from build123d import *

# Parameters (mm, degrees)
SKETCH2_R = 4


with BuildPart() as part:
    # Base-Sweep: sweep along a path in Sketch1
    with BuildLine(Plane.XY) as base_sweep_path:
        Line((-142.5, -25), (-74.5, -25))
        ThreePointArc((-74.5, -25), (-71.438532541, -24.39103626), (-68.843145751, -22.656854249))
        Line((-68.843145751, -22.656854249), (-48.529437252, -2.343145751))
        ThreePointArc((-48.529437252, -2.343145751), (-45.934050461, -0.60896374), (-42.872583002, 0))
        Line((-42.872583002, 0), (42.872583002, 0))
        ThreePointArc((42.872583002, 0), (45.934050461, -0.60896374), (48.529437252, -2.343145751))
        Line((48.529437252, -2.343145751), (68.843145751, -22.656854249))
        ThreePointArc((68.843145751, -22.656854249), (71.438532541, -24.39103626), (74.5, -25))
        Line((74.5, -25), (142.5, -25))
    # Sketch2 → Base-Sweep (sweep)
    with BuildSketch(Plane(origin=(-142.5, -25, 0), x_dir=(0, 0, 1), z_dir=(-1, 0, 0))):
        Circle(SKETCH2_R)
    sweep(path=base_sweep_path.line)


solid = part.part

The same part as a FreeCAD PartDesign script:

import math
import FreeCAD as App
import Part
import Sketcher
from FreeCAD import Vector

doc = App.newDocument("Part")
params = doc.addObject("Spreadsheet::Sheet", "Params")
for row, (alias, value) in enumerate([
    ("sketch1_diameter", "8 mm"),
    ("sketch2_radius", "8 mm"),
    ("sketch2_width", "68 mm"),
], start=1):
    params.set(f"A{row}", alias)
    params.set(f"B{row}", "=" + value)
    params.setAlias(f"B{row}", alias)

body = doc.addObject("PartDesign::Body", "Body")

sketch1 = doc.addObject("Sketcher::SketchObject", "Sketch")
body.addObject(sketch1)
sketch1.AttachmentSupport = (doc.YZ_Plane, [""])
sketch1.MapMode = "FlatFace"
sketch1.AttachmentOffset = App.Placement(Vector(0, 0, -142.5), App.Rotation())
sketch1.addGeometry(Part.Circle(Vector(-25, 0, 0), Vector(0, 0, 1), 4), False)
sketch1.addConstraint(Sketcher.Constraint("PointOnObject", 0, 3, -1))
sketch1.addConstraint(Sketcher.Constraint("Diameter", 0, 8.0))
sketch1.addConstraint(Sketcher.Constraint("DistanceX", 0, 3, -1, 1, 25.0))
sketch1.setExpression("Constraints[1]", "Params.sketch1_diameter")

sketch2 = doc.addObject("Sketcher::SketchObject", "Sketch001")
body.addObject(sketch2)
sketch2.AttachmentSupport = (doc.XY_Plane, [""])
sketch2.MapMode = "FlatFace"
sketch2.addGeometry(Part.LineSegment(Vector(-142, -25, 0), Vector(-74, -25, 0)), False)
sketch2.addGeometry(Part.ArcOfCircle(Part.Circle(Vector(-74, -17, 0), Vector(0, 0, 1), 8), math.radians(-90), math.radians(-45)), False)
sketch2.addGeometry(Part.LineSegment(Vector(-69, -23, 0), Vector(-49, -2, 0)), False)
sketch2.addGeometry(Part.ArcOfCircle(Part.Circle(Vector(-43, -8, 0), Vector(0, 0, 1), 8), math.radians(90), math.radians(135)), False)
sketch2.addGeometry(Part.LineSegment(Vector(-43, 0, 0), Vector(43, 0, 0)), False)
sketch2.addGeometry(Part.ArcOfCircle(Part.Circle(Vector(43, -8, 0), Vector(0, 0, 1), 8), math.radians(45), math.radians(90)), False)
sketch2.addGeometry(Part.LineSegment(Vector(49, -2, 0), Vector(69, -23, 0)), False)
sketch2.addGeometry(Part.ArcOfCircle(Part.Circle(Vector(74, -17, 0), Vector(0, 0, 1), 8), math.radians(-135), math.radians(-90)), False)
sketch2.addGeometry(Part.LineSegment(Vector(74, -25, 0), Vector(142, -25, 0)), False)
sketch2.addConstraint(Sketcher.Constraint("Tangent", 0, 2, 1, 1))
sketch2.addConstraint(Sketcher.Constraint("Tangent", 1, 2, 2, 1))
sketch2.addConstraint(Sketcher.Constraint("Tangent", 2, 2, 3, 2))
sketch2.addConstraint(Sketcher.Constraint("Tangent", 3, 1, 4, 1))
sketch2.addConstraint(Sketcher.Constraint("Tangent", 4, 2, 5, 2))
sketch2.addConstraint(Sketcher.Constraint("Tangent", 5, 1, 6, 1))
sketch2.addConstraint(Sketcher.Constraint("Tangent", 6, 2, 7, 1))
sketch2.addConstraint(Sketcher.Constraint("Tangent", 7, 2, 8, 1))
sketch2.addConstraint(Sketcher.Constraint("Horizontal", 0))
sketch2.addConstraint(Sketcher.Constraint("Horizontal", 4))
sketch2.addConstraint(Sketcher.Constraint("Horizontal", 8))
sketch2.addConstraint(Sketcher.Constraint("Equal", 1, 3))
sketch2.addConstraint(Sketcher.Constraint("Equal", 3, 5))
sketch2.addConstraint(Sketcher.Constraint("Equal", 5, 7))
sketch2.addConstraint(Sketcher.Constraint("Symmetric", 3, 1, 4, 2, -1, 1))
sketch2.addConstraint(Sketcher.Constraint("Symmetric", 1, 3, 7, 3, -2))
sketch2.addConstraint(Sketcher.Constraint("Perpendicular", 2, 6))
sketch2.addConstraint(Sketcher.Constraint("Equal", 0, 8))
sketch2.addConstraint(Sketcher.Constraint("Radius", 1, 8.0))
sketch2.addConstraint(Sketcher.Constraint("DistanceX", 0, 1, 0, 2, 68.0))
sketch2.addConstraint(Sketcher.Constraint("DistanceY", 1, 3, -1, 1, 17.0))
sketch2.addConstraint(Sketcher.Constraint("DistanceX", 1, 3, 7, 3, 149.0))
sketch2.setExpression("Constraints[18]", "Params.sketch2_radius")
sketch2.setExpression("Constraints[19]", "Params.sketch2_width")
doc.recompute()

additivepipe = doc.addObject("PartDesign::AdditivePipe", "AdditivePipe")
body.addObject(additivepipe)
additivepipe.Profile = sketch1
additivepipe.Spine = (sketch2, ["Edge1", "Edge2", "Edge3", "Edge4", "Edge5", "Edge6", "Edge7", "Edge8", "Edge9"])

doc.recompute()
